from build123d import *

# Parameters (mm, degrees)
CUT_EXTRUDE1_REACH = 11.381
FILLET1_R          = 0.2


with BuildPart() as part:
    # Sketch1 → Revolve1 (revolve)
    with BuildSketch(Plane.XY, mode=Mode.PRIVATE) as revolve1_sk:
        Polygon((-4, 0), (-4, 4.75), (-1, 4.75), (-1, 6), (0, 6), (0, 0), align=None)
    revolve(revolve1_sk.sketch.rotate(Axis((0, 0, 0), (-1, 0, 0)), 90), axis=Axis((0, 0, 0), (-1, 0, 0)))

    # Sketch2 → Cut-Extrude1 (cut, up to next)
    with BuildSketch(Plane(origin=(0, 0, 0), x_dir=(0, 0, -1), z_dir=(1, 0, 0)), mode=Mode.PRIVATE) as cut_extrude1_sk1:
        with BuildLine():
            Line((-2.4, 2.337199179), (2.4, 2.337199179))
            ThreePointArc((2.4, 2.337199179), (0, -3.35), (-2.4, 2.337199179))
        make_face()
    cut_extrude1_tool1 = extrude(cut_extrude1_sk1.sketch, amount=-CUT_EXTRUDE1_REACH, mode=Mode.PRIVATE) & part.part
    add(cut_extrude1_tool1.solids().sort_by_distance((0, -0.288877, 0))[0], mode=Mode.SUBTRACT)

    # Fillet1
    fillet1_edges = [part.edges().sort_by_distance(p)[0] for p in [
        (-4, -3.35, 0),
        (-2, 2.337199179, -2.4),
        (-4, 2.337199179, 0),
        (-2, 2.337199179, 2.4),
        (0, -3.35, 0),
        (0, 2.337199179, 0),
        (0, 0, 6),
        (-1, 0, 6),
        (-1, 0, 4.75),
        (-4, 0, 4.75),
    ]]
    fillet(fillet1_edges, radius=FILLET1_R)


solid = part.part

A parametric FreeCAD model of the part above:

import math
import FreeCAD as App
import Part
import Sketcher

V = App.Vector

doc = App.newDocument("Part")
params = doc.addObject("Spreadsheet::Sheet", "Params")
for row, (alias, value) in enumerate([
    ("sketch1_width", "4 mm"),
    ("sketch1_width2", "1 mm"),
    ("sketch1_height", "6 mm"),
    ("sketch1_height2", "4.75 mm"),
    ("revolution_angle", "360 deg"),
    ("sketch2_radius", "3.35 mm"),
    ("sketch2_height", "4.8 mm"),
    ("fillet_radius", "0.2 mm"),
], start=1):
    params.set(f"A{row}", alias)
    params.set(f"B{row}", "=" + value)
    params.setAlias(f"B{row}", alias)

body = doc.addObject("PartDesign::Body", "Body")

sketch1 = doc.addObject("Sketcher::SketchObject", "Sketch")
body.addObject(sketch1)
sketch1.AttachmentSupport = (doc.XY_Plane, [""])
sketch1.MapMode = "FlatFace"
sketch1.addGeometry([
    Part.LineSegment(V(-4, 4.8, 0), V(-4, 0, 0)),
    Part.LineSegment(V(-4, 0, 0), V(0, 0, 0)),
    Part.LineSegment(V(0, 0, 0), V(0, 6, 0)),
    Part.LineSegment(V(0, 6, 0), V(-1, 6, 0)),
    Part.LineSegment(V(-1, 6, 0), V(-1, 4.8, 0)),
    Part.LineSegment(V(-1, 4.8, 0), V(-4, 4.8, 0)),
], False)
sketch1.addConstraint([
    Sketcher.Constraint("Coincident", 0, 2, 1, 1),
    Sketcher.Constraint("Coincident", 1, 2, 2, 1),
    Sketcher.Constraint("Coincident", 2, 2, 3, 1),
    Sketcher.Constraint("Coincident", 3, 2, 4, 1),
    Sketcher.Constraint("Coincident", 4, 2, 5, 1),
    Sketcher.Constraint("Coincident", 5, 2, 0, 1),
    Sketcher.Constraint("Vertical", 0),
    Sketcher.Constraint("Horizontal", 1),
    Sketcher.Constraint("Vertical", 2),
    Sketcher.Constraint("Horizontal", 3),
    Sketcher.Constraint("Vertical", 4),
    Sketcher.Constraint("Horizontal", 5),
    Sketcher.Constraint("Coincident", 1, 2, -1, 1),
    Sketcher.Constraint("DistanceX", 1, 1, 1, 2, 4.0),
    Sketcher.Constraint("DistanceX", 3, 2, 3, 1, 1.0),
    Sketcher.Constraint("DistanceY", 2, 1, 2, 2, 6.0),
    Sketcher.Constraint("DistanceY", 0, 2, 0, 1, 4.75),
])
sketch1.setExpression("Constraints[13]", "Params.sketch1_width")
sketch1.setExpression("Constraints[14]", "Params.sketch1_width2")
sketch1.setExpression("Constraints[15]", "Params.sketch1_height")
sketch1.setExpression("Constraints[16]", "Params.sketch1_height2")
revolution = doc.addObject("PartDesign::Revolution", "Revolution")
body.addObject(revolution)
revolution.Profile = sketch1
revolution.ReferenceAxis = (sketch1, ["H_Axis"])
revolution.setExpression("Angle", "Params.revolution_angle")

sketch2 = doc.addObject("Sketcher::SketchObject", "Sketch001")
body.addObject(sketch2)
sketch2.AttachmentSupport = (doc.YZ_Plane, [""])
sketch2.MapMode = "FlatFace"
sketch2.addGeometry([
    Part.LineSegment(V(2.3, -2.4, 0), V(2.3, 2.4, 0)),
    Part.ArcOfCircle(Part.Circle(V(0, 0, 0), V(0, 0, 1), 3.4), math.radians(46), math.radians(314)),
], False)
sketch2.addConstraint([
    Sketcher.Constraint("Coincident", 0, 1, 1, 2),
    Sketcher.Constraint("Coincident", 1, 1, 0, 2),
    Sketcher.Constraint("Vertical", 0),
    Sketcher.Constraint("Coincident", 1, 3, -1, 1),
    Sketcher.Constraint("Radius", 1, 3.35),
    Sketcher.Constraint("DistanceY", 0, 1, 0, 2, 4.8),
])
sketch2.setExpression("Constraints[4]", "Params.sketch2_radius")
sketch2.setExpression("Constraints[5]", "Params.sketch2_height")
pocket1 = doc.addObject("PartDesign::Pocket", "Pocket")
body.addObject(pocket1)
pocket1.Profile = sketch2
pocket1.Type = "UpToFirst"
doc.recompute()

fillet = doc.addObject("PartDesign::Fillet", "Fillet")
body.addObject(fillet)
fillet.Base = (pocket1, ["Edge1"])
fillet.UseAllEdges = True
fillet.setExpression("Radius", "Params.fillet_radius")

doc.recompute()
